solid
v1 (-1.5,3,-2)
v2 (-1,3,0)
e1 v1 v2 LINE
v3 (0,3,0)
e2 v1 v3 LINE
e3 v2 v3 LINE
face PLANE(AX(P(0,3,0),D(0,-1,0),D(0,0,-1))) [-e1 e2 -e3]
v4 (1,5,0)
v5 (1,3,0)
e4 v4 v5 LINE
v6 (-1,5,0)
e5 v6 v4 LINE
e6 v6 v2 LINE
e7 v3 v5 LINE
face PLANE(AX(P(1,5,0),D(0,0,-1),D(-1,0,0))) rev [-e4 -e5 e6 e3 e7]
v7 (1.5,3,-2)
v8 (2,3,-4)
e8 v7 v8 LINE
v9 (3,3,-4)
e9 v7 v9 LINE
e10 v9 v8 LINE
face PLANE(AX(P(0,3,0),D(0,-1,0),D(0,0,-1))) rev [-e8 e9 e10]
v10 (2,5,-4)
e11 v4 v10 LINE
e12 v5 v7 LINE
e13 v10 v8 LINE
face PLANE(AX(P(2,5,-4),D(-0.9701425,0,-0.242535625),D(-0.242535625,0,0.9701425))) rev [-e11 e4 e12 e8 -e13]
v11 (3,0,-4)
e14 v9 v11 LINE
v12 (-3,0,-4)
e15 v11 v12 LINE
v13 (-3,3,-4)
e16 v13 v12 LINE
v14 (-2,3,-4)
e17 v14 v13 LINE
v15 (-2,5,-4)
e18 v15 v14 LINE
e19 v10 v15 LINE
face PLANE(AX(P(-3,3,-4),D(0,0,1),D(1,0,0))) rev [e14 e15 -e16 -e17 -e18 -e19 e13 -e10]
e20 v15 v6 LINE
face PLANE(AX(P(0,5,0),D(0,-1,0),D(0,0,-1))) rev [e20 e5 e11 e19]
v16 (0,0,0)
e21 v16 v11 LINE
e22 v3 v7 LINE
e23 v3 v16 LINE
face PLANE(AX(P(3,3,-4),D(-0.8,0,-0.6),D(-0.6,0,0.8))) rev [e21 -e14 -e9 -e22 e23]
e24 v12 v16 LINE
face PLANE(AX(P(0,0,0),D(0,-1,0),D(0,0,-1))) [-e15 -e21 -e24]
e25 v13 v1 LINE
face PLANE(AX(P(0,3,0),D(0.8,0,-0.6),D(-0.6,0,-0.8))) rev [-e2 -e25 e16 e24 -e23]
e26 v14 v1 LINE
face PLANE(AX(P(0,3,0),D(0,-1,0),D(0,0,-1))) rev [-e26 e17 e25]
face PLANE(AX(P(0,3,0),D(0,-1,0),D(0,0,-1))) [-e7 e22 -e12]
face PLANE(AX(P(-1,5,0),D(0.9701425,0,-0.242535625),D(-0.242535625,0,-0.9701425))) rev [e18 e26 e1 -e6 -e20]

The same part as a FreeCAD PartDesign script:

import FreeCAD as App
import Part
import Sketcher
from FreeCAD import Vector

doc = App.newDocument("Part")
body = doc.addObject("PartDesign::Body", "Body")

sketch1 = doc.addObject("Sketcher::SketchObject", "Sketch")
body.addObject(sketch1)
sketch1.AttachmentSupport = (doc.XZ_Plane, [""])
sketch1.MapMode = "FlatFace"
sketch1.addGeometry([
    Part.LineSegment(Vector(-3, -4, 0), Vector(0, 0, 0)),
    Part.LineSegment(Vector(0, 0, 0), Vector(3, -4, 0)),
    Part.LineSegment(Vector(3, -4, 0), Vector(-3, -4, 0)),
], False)
sketch1.addConstraint([
    Sketcher.Constraint("Coincident", 0, 2, 1, 1),
    Sketcher.Constraint("Coincident", 1, 2, 2, 1),
    Sketcher.Constraint("Coincident", 2, 2, 0, 1),
    Sketcher.Constraint("Horizontal", 2),
    Sketcher.Constraint("Coincident", 0, 2, -1, 1),
    Sketcher.Constraint("Equal", 0, 1),
    Sketcher.Constraint("DistanceX", 2, 2, 2, 1, 6.0),
    Sketcher.Constraint("Distance", 0, 5.0),
])
pad1 = doc.addObject("PartDesign::Pad", "Pad")
body.addObject(pad1)
pad1.Profile = sketch1
pad1.Length = 3
pad1.Reversed = True

sketch2 = doc.addObject("Sketcher::SketchObject", "Sketch001")
body.addObject(sketch2)
sketch2.AttachmentSupport = (doc.XZ_Plane, [""])
sketch2.MapMode = "FlatFace"
sketch2.AttachmentOffset = App.Placement(Vector(0, 0, -3), App.Rotation())
sketch2.addGeometry([
    Part.LineSegment(Vector(1, 0, 0), Vector(2, -4, 0)),
    Part.LineSegment(Vector(2, -4, 0), Vector(-2, -4, 0)),
    Part.LineSegment(Vector(-2, -4, 0), Vector(-1, 0, 0)),
    Part.LineSegment(Vector(-1, 0, 0), Vector(1, 0, 0)),
], False)
sketch2.addConstraint([
    Sketcher.Constraint("Coincident", 0, 2, 1, 1),
    Sketcher.Constraint("Coincident", 1, 2, 2, 1),
    Sketcher.Constraint("Coincident", 2, 2, 3, 1),
    Sketcher.Constraint("Coincident", 3, 2, 0, 1),
    Sketcher.Constraint("Horizontal", 1),
    Sketcher.Constraint("Horizontal", 3),
    Sketcher.Constraint("Symmetric", 2, 2, 3, 2, -1, 1),
    Sketcher.Constraint("Equal", 0, 2),
    Sketcher.Constraint("DistanceX", 1, 2, 1, 1, 4.0),
    Sketcher.Constraint("DistanceX", 3, 1, 3, 2, 2.0),
    Sketcher.Constraint("DistanceY", 0, 2, -1, 1, 4.0),
])
pad2 = doc.addObject("PartDesign::Pad", "Pad001")
body.addObject(pad2)
pad2.Profile = sketch2
pad2.Length = 2
pad2.Reversed = True

doc.recompute()
